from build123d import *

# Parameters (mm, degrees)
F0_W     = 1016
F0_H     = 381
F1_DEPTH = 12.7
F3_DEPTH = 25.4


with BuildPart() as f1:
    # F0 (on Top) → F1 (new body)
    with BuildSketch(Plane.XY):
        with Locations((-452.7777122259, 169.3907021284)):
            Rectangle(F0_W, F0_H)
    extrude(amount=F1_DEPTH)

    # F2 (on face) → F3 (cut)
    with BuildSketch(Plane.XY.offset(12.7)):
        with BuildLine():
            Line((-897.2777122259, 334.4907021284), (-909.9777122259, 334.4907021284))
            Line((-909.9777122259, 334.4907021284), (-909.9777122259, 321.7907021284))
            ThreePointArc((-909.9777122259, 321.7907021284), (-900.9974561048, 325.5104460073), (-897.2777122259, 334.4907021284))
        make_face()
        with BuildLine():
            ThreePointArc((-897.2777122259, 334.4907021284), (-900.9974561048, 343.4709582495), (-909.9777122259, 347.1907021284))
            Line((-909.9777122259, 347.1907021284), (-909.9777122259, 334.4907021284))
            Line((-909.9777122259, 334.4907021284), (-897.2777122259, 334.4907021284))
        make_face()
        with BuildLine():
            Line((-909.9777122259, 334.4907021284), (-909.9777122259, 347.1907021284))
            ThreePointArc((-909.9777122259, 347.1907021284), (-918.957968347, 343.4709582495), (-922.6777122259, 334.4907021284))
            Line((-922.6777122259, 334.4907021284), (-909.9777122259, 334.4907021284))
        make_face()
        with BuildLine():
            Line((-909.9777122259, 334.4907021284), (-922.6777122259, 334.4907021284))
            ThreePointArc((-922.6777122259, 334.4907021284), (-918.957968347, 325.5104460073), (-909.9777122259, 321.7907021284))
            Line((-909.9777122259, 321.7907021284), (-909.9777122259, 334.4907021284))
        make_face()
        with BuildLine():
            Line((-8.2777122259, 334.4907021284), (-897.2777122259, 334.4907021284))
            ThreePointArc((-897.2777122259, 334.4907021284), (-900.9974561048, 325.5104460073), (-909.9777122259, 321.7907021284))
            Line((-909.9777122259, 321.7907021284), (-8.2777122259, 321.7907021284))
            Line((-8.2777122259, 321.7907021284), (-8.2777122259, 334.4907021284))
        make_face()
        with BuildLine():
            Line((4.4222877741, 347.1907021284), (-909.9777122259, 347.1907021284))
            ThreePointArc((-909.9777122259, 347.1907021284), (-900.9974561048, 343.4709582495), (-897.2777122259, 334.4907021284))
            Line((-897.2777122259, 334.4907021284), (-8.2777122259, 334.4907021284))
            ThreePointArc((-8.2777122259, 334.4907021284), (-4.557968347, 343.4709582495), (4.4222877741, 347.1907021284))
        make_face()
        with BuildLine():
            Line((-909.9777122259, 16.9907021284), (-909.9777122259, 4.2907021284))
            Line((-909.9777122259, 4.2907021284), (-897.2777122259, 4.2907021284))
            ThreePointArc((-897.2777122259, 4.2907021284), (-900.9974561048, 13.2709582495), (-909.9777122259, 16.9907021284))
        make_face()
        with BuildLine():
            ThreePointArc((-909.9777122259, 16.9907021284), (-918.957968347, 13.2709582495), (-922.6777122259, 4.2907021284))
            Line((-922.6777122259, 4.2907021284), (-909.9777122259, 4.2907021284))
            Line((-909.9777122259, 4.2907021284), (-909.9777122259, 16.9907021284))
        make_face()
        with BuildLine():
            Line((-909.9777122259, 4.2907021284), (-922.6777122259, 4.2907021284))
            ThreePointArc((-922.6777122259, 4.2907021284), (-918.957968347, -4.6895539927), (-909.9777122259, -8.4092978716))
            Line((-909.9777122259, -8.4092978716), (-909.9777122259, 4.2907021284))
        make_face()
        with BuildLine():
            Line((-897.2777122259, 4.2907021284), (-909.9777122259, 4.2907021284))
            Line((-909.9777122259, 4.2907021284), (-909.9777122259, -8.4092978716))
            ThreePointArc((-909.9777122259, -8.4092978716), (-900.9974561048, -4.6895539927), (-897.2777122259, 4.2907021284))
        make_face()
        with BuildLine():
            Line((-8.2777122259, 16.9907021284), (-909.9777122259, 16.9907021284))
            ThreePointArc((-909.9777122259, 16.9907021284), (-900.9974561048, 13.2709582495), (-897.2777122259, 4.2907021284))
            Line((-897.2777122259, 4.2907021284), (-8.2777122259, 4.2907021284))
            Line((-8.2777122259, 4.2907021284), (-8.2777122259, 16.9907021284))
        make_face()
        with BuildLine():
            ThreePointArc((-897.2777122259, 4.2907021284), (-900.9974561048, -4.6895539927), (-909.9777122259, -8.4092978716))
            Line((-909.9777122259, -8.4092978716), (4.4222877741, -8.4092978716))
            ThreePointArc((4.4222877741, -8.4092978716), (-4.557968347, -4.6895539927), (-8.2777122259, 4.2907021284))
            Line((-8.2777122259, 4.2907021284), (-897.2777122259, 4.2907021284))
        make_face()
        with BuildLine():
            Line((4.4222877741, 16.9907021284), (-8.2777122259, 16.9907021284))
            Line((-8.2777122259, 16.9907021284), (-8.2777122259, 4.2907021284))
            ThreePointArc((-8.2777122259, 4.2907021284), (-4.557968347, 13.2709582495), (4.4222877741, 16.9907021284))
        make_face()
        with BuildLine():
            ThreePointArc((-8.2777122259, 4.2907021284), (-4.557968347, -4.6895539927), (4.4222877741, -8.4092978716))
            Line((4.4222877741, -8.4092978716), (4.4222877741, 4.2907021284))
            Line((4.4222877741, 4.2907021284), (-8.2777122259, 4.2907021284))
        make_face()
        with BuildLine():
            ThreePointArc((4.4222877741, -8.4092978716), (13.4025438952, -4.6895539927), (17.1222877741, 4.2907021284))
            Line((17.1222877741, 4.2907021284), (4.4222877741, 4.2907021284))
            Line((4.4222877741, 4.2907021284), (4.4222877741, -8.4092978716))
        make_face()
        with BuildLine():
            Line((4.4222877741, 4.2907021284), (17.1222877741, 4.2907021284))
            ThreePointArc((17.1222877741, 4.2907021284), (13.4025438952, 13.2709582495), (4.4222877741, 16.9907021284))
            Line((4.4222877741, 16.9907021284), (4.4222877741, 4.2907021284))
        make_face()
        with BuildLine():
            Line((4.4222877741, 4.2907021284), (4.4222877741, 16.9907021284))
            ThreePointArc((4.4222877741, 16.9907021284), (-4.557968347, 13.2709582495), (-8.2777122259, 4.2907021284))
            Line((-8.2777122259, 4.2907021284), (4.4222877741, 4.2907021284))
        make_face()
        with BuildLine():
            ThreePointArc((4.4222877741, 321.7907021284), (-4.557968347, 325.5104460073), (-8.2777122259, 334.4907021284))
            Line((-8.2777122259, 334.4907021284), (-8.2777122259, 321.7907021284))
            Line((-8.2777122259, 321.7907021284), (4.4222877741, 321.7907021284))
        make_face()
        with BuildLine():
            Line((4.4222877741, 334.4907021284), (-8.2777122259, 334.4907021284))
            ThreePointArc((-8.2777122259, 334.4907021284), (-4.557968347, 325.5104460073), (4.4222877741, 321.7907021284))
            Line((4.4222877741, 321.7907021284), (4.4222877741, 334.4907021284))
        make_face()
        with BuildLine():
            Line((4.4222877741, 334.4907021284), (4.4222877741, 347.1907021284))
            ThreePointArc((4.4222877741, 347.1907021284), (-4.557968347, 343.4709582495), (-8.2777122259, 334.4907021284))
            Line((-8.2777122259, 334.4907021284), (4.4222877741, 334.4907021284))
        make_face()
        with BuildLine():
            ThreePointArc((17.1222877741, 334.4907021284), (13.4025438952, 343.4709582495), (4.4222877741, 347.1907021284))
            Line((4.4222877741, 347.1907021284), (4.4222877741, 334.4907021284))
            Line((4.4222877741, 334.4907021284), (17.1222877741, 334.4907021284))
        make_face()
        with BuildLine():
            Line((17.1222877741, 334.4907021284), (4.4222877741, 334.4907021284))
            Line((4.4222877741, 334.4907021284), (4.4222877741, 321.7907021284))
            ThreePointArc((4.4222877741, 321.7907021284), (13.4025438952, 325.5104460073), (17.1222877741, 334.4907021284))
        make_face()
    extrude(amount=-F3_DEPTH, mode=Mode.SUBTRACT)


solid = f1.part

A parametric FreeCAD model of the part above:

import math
import FreeCAD as App
import Part
import Sketcher
from FreeCAD import Vector
Q = App.Units.Quantity

doc = App.newDocument("Part")
params = doc.addObject("Spreadsheet::Sheet", "Params")
for row, (alias, value) in enumerate([
    ("sketch1_width", "40 in"),
    ("sketch1_height", "15 in"),
    ("pad1_length", "0.5 in"),
    ("sketch2_radius", "0.5 in"),
    ("sketch2_width", "36 in"),
    ("pocket1_length", "1 in"),
], start=1):
    params.set(f"A{row}", alias)
    params.set(f"B{row}", "=" + value)
    params.setAlias(f"B{row}", alias)

body = doc.addObject("PartDesign::Body", "Body")

# Sketch on XY plane
sketch1 = body.newObject("Sketcher::SketchObject", "Sketch")
sketch1.AttachmentSupport = (doc.getObject("XY_Plane"), [""])
sketch1.MapMode = "FlatFace"
sketch1.addGeometry([
    Part.LineSegment(Vector(-960.777712, 359.890702, 0), Vector(-960.777712, -21.109298, 0)),
    Part.LineSegment(Vector(-960.777712, -21.109298, 0), Vector(55.222288, -21.109298, 0)),
    Part.LineSegment(Vector(55.222288, -21.109298, 0), Vector(55.222288, 359.890702, 0)),
    Part.LineSegment(Vector(55.222288, 359.890702, 0), Vector(-960.777712, 359.890702, 0)),
], False)
sketch1.addConstraint([
    Sketcher.Constraint("Coincident", 0, 2, 1, 1),
    Sketcher.Constraint("Coincident", 1, 2, 2, 1),
    Sketcher.Constraint("Coincident", 2, 2, 3, 1),
    Sketcher.Constraint("Coincident", 3, 2, 0, 1),
    Sketcher.Constraint("Vertical", 0),
    Sketcher.Constraint("Horizontal", 1),
    Sketcher.Constraint("Vertical", 2),
    Sketcher.Constraint("Horizontal", 3),
    Sketcher.Constraint("DistanceX", 1, 1, 1, 2, Q("40 in")),
    Sketcher.Constraint("DistanceY", 0, 2, 0, 1, Q("15 in")),
    Sketcher.Constraint("DistanceX", 0, 2, -1, 1, 960.777712),
    Sketcher.Constraint("DistanceY", 0, 2, -1, 1, 21.109298),
])
sketch1.setExpression("Constraints[8]", "Params.sketch1_width")
sketch1.setExpression("Constraints[9]", "Params.sketch1_height")
pad1 = body.newObject("PartDesign::Pad", "Pad")
pad1.Profile = sketch1
pad1.setExpression("Length", "Params.pad1_length")

# Sketch on XY plane
sketch2 = body.newObject("Sketcher::SketchObject", "Sketch001")
sketch2.AttachmentSupport = (doc.getObject("XY_Plane"), [""])
sketch2.MapMode = "FlatFace"
sketch2.AttachmentOffset = App.Placement(Vector(0, 0, 0.5 * 25.4), App.Rotation())
sketch2.addGeometry([
    Part.ArcOfCircle(Part.Circle(Vector(-909.977712, 334.490702, 0), Vector(0, 0, 1), 12.7), math.radians(90), math.radians(180)),  # 0
    Part.ArcOfCircle(Part.Circle(Vector(-909.977712, 334.490702, 0), Vector(0, 0, 1), 12.7), math.radians(180), math.radians(270)),  # 1
    Part.LineSegment(Vector(-909.977712, 321.790702, 0), Vector(4.422288, 321.790702, 0)),  # 2
    Part.ArcOfCircle(Part.Circle(Vector(4.422288, 334.490702, 0), Vector(0, 0, 1), 12.7), math.radians(-90), math.radians(0)),  # 3
    Part.ArcOfCircle(Part.Circle(Vector(4.422288, 334.490702, 0), Vector(0, 0, 1), 12.7), math.radians(0), math.radians(90)),  # 4
    Part.LineSegment(Vector(4.422288, 347.190702, 0), Vector(-909.977712, 347.190702, 0)),  # 5
    Part.ArcOfCircle(Part.Circle(Vector(4.422288, 4.290702, 0), Vector(0, 0, 1), 12.7), math.radians(0), math.radians(90)),  # 6
    Part.LineSegment(Vector(4.422288, 16.990702, 0), Vector(-909.977712, 16.990702, 0)),  # 7
    Part.ArcOfCircle(Part.Circle(Vector(-909.977712, 4.290702, 0), Vector(0, 0, 1), 12.7), math.radians(90), math.radians(180)),  # 8
    Part.ArcOfCircle(Part.Circle(Vector(-909.977712, 4.290702, 0), Vector(0, 0, 1), 12.7), math.radians(180), math.radians(270)),  # 9
    Part.LineSegment(Vector(-909.977712, -8.409298, 0), Vector(4.422288, -8.409298, 0)),  # 10
    Part.ArcOfCircle(Part.Circle(Vector(4.422288, 4.290702, 0), Vector(0, 0, 1), 12.7), math.radians(-90), math.radians(0)),  # 11
], False)
sketch2.addConstraint([
    Sketcher.Constraint("Tangent", 0, 2, 1, 1),
    Sketcher.Constraint("Tangent", 1, 2, 2, 1),
    Sketcher.Constraint("Tangent", 2, 2, 3, 1),
    Sketcher.Constraint("Tangent", 3, 2, 4, 1),
    Sketcher.Constraint("Tangent", 4, 2, 5, 1),
    Sketcher.Constraint("Tangent", 5, 2, 0, 1),
    Sketcher.Constraint("Tangent", 6, 2, 7, 1),
    Sketcher.Constraint("Tangent", 7, 2, 8, 1),
    Sketcher.Constraint("Tangent", 8, 2, 9, 1),
    Sketcher.Constraint("Tangent", 9, 2, 10, 1),
    Sketcher.Constraint("Tangent", 10, 2, 11, 1),
    Sketcher.Constraint("Tangent", 11, 2, 6, 1),
    Sketcher.Constraint("Horizontal", 2),
    Sketcher.Constraint("Horizontal", 5),
    Sketcher.Constraint("Horizontal", 7),
    Sketcher.Constraint("Horizontal", 10),
    Sketcher.Constraint("Equal", 0, 1),
    Sketcher.Constraint("Equal", 1, 3),
    Sketcher.Constraint("Equal", 4, 6),
    Sketcher.Constraint("Equal", 6, 8),
    Sketcher.Constraint("Equal", 8, 9),
    Sketcher.Constraint("Horizontal", 4, 3, 0, 2),
    Sketcher.Constraint("Horizontal", 0, 2, 3, 2),
    Sketcher.Constraint("Horizontal", 11, 3, 8, 2),
    Sketcher.Constraint("Horizontal", 8, 2, 11, 2),
    Sketcher.Constraint("Vertical", 4, 3, 6, 3),
    Sketcher.Constraint("Vertical", 1, 3, 8, 3),
    Sketcher.Constraint("Radius", 0, Q("0.5 in")),
    Sketcher.Constraint("DistanceX", 2, 1, 2, 2, Q("36 in")),
    Sketcher.Constraint("DistanceY", 6, 3, 3, 3, Q("13 in")),
    Sketcher.Constraint("DistanceX", 0, 3, -1, 1, 909.977712),
    Sketcher.Constraint("DistanceY", -1, 1, 0, 3, 334.490702),
])
sketch2.setExpression("Constraints[27]", "Params.sketch2_radius")
sketch2.setExpression("Constraints[28]", "Params.sketch2_width")
pocket1 = body.newObject("PartDesign::Pocket", "Pocket")
pocket1.Profile = sketch2
pocket1.setExpression("Length", "Params.pocket1_length")

doc.recompute()
